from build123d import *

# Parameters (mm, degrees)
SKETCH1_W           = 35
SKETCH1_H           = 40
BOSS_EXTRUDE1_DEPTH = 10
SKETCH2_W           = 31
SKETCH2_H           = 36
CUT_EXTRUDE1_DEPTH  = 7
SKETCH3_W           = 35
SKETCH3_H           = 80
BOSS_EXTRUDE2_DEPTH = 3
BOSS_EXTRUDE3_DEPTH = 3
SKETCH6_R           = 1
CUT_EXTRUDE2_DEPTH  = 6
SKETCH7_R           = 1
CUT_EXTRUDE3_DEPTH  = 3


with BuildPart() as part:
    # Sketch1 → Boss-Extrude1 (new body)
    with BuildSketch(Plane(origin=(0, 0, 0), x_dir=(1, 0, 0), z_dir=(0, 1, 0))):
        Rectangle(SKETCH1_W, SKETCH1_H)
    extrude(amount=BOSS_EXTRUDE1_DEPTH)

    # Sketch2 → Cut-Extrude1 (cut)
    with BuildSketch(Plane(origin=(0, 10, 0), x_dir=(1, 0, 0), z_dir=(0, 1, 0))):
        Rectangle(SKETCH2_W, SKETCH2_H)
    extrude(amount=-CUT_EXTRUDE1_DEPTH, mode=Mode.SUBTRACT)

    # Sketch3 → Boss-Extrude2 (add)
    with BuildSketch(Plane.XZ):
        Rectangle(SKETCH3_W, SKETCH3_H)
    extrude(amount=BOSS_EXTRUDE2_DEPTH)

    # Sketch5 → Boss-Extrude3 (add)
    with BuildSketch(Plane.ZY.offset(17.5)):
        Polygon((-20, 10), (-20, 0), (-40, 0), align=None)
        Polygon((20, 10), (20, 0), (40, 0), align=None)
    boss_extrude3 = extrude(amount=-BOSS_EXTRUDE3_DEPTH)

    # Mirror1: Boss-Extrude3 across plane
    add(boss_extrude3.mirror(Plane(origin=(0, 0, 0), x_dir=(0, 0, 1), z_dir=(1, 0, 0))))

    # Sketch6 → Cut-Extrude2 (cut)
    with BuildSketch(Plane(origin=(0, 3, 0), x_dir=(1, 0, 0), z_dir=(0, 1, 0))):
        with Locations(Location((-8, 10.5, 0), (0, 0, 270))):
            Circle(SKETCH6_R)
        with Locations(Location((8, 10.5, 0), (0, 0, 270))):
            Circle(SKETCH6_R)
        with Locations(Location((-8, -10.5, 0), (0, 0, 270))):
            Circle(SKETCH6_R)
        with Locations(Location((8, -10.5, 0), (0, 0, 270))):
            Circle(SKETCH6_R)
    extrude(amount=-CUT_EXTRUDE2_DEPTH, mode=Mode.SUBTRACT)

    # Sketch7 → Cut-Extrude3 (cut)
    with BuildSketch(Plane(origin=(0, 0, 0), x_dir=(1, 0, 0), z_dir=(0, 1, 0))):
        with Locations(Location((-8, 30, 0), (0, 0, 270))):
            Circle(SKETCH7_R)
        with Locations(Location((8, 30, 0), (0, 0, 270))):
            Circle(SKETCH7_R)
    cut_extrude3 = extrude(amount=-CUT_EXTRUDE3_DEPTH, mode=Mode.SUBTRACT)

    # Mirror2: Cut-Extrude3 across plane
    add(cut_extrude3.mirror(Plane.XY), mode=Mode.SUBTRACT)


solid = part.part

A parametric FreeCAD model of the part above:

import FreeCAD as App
import Part
import Sketcher
from FreeCAD import Vector

doc = App.newDocument("Part")
body = doc.addObject("PartDesign::Body", "Body")

sketch1 = body.newObject("Sketcher::SketchObject", "Sketch")
sketch1.AttachmentSupport = (doc.getObject("XZ_Plane"), [""])
sketch1.MapMode = "FlatFace"
sketch1.addGeometry([
    Part.LineSegment(Vector(-18, -20, 0), Vector(-18, 20, 0)),
    Part.LineSegment(Vector(-18, 20, 0), Vector(18, 20, 0)),
    Part.LineSegment(Vector(18, 20, 0), Vector(18, -20, 0)),
    Part.LineSegment(Vector(18, -20, 0), Vector(-18, -20, 0)),
], False)
sketch1.addConstraint([
    Sketcher.Constraint("Coincident", 0, 2, 1, 1),
    Sketcher.Constraint("Coincident", 1, 2, 2, 1),
    Sketcher.Constraint("Coincident", 2, 2, 3, 1),
    Sketcher.Constraint("Coincident", 3, 2, 0, 1),
    Sketcher.Constraint("Vertical", 0),
    Sketcher.Constraint("Horizontal", 1),
    Sketcher.Constraint("Vertical", 2),
    Sketcher.Constraint("Horizontal", 3),
    Sketcher.Constraint("Symmetric", 0, 2, 2, 2, -1, 1),
    Sketcher.Constraint("DistanceX", 1, 1, 1, 2, 35.0),
    Sketcher.Constraint("DistanceY", 0, 1, 0, 2, 40.0),
])
pad1 = body.newObject("PartDesign::Pad", "Pad")
pad1.Profile = sketch1
pad1.Length = 10
pad1.Reversed = True

sketch2 = body.newObject("Sketcher::SketchObject", "Sketch001")
sketch2.AttachmentSupport = (doc.getObject("XZ_Plane"), [""])
sketch2.MapMode = "FlatFace"
sketch2.AttachmentOffset = App.Placement(Vector(0, 0, -10), App.Rotation())
sketch2.addGeometry([
    Part.LineSegment(Vector(-16, -18, 0), Vector(-16, 18, 0)),
    Part.LineSegment(Vector(-16, 18, 0), Vector(16, 18, 0)),
    Part.LineSegment(Vector(16, 18, 0), Vector(16, -18, 0)),
    Part.LineSegment(Vector(16, -18, 0), Vector(-16, -18, 0)),
], False)
sketch2.addConstraint([
    Sketcher.Constraint("Coincident", 0, 2, 1, 1),
    Sketcher.Constraint("Coincident", 1, 2, 2, 1),
    Sketcher.Constraint("Coincident", 2, 2, 3, 1),
    Sketcher.Constraint("Coincident", 3, 2, 0, 1),
    Sketcher.Constraint("Vertical", 0),
    Sketcher.Constraint("Horizontal", 1),
    Sketcher.Constraint("Vertical", 2),
    Sketcher.Constraint("Horizontal", 3),
    Sketcher.Constraint("Symmetric", 0, 2, 2, 2, -1, 1),
    Sketcher.Constraint("DistanceX", 1, 1, 1, 2, 31.0),
    Sketcher.Constraint("DistanceY", 0, 1, 0, 2, 36.0),
])
pocket1 = body.newObject("PartDesign::Pocket", "Pocket")
pocket1.Profile = sketch2
pocket1.Length = 7
pocket1.Reversed = True

sketch3 = body.newObject("Sketcher::SketchObject", "Sketch002")
sketch3.AttachmentSupport = (doc.getObject("XZ_Plane"), [""])
sketch3.MapMode = "FlatFace"
sketch3.addGeometry([
    Part.LineSegment(Vector(-18, 40, 0), Vector(-18, -40, 0)),
    Part.LineSegment(Vector(-18, -40, 0), Vector(18, -40, 0)),
    Part.LineSegment(Vector(18, -40, 0), Vector(18, 40, 0)),
    Part.LineSegment(Vector(18, 40, 0), Vector(-18, 40, 0)),
], False)
sketch3.addConstraint([
    Sketcher.Constraint("Coincident", 0, 2, 1, 1),
    Sketcher.Constraint("Coincident", 1, 2, 2, 1),
    Sketcher.Constraint("Coincident", 2, 2, 3, 1),
    Sketcher.Constraint("Coincident", 3, 2, 0, 1),
    Sketcher.Constraint("Vertical", 0),
    Sketcher.Constraint("Horizontal", 1),
    Sketcher.Constraint("Vertical", 2),
    Sketcher.Constraint("Horizontal", 3),
    Sketcher.Constraint("Symmetric", 0, 2, 2, 2, -1, 1),
    Sketcher.Constraint("DistanceX", 1, 1, 1, 2, 35.0),
    Sketcher.Constraint("DistanceY", 0, 2, 0, 1, 80.0),
])
pad2 = body.newObject("PartDesign::Pad", "Pad001")
pad2.Profile = sketch3
pad2.Length = 3

sketch4 = body.newObject("Sketcher::SketchObject", "Sketch003")
sketch4.AttachmentSupport = (doc.getObject("YZ_Plane"), [""])
sketch4.MapMode = "FlatFace"
sketch4.AttachmentOffset = App.Placement(Vector(0, 0, -17.5), App.Rotation())
sketch4.addGeometry([
    Part.LineSegment(Vector(0, -20, 0), Vector(10, -20, 0)),
    Part.LineSegment(Vector(10, -20, 0), Vector(0, -40, 0)),
    Part.LineSegment(Vector(0, -40, 0), Vector(0, -20, 0)),
    Part.LineSegment(Vector(10, 20, 0), Vector(0, 20, 0)),
    Part.LineSegment(Vector(0, 20, 0), Vector(0, 40, 0)),
    Part.LineSegment(Vector(0, 40, 0), Vector(10, 20, 0)),
], False)
sketch4.addConstraint([
    Sketcher.Constraint("Coincident", 0, 2, 1, 1),
    Sketcher.Constraint("Coincident", 1, 2, 2, 1),
    Sketcher.Constraint("Coincident", 2, 2, 0, 1),
    Sketcher.Constraint("Coincident", 3, 2, 4, 1),
    Sketcher.Constraint("Coincident", 4, 2, 5, 1),
    Sketcher.Constraint("Coincident", 5, 2, 3, 1),
    Sketcher.Constraint("Horizontal", 0),
    Sketcher.Constraint("Vertical", 2),
    Sketcher.Constraint("Horizontal", 3),
    Sketcher.Constraint("Vertical", 4),
    Sketcher.Constraint("Symmetric", 2, 2, 3, 2, -1, 1),
    Sketcher.Constraint("Symmetric", 1, 2, 4, 2, -1),
    Sketcher.Constraint("Vertical", 0, 2, 5, 2),
    Sketcher.Constraint("DistanceX", 0, 1, 0, 2, 10.0),
    Sketcher.Constraint("DistanceY", 2, 1, 2, 2, 20.0),
    Sketcher.Constraint("DistanceY", 0, 2, -1, 1, 20.0),
])
pad3 = body.newObject("PartDesign::Pad", "Pad002")
pad3.Profile = sketch4
pad3.Length = 3
doc.recompute()

mirrored = body.newObject("PartDesign::Mirrored", "Mirrored")
mirrored.Originals = [pad3]
mirrored.MirrorPlane = (doc.getObject("YZ_Plane"), [""])
body.Tip = mirrored

sketch5 = body.newObject("Sketcher::SketchObject", "Sketch004")
sketch5.AttachmentSupport = (doc.getObject("XZ_Plane"), [""])
sketch5.MapMode = "FlatFace"
sketch5.AttachmentOffset = App.Placement(Vector(0, 0, -3), App.Rotation())
sketch5.addGeometry([
    Part.Circle(Vector(-8, -10.5, 0), Vector(0, 0, 1), 1),
    Part.Circle(Vector(8, -10.5, 0), Vector(0, 0, 1), 1),
    Part.Circle(Vector(-8, 10.5, 0), Vector(0, 0, 1), 1),
    Part.Circle(Vector(8, 10.5, 0), Vector(0, 0, 1), 1),
], False)
sketch5.addConstraint([
    Sketcher.Constraint("Equal", 0, 1),
    Sketcher.Constraint("Equal", 1, 2),
    Sketcher.Constraint("Equal", 2, 3),
    Sketcher.Constraint("Symmetric", 1, 3, 2, 3, -1, 1),
    Sketcher.Constraint("Symmetric", 0, 3, 3, 3, -1, 1),
    Sketcher.Constraint("Symmetric", 0, 3, 1, 3, -2),
    Sketcher.Constraint("Diameter", 0, 2.0),
    Sketcher.Constraint("DistanceX", 0, 3, -1, 1, 8.0),
    Sketcher.Constraint("DistanceY", 0, 3, 2, 3, 21.0),
])
pocket2 = body.newObject("PartDesign::Pocket", "Pocket001")
pocket2.Profile = sketch5
pocket2.Length = 6
pocket2.Reversed = True

sketch6 = body.newObject("Sketcher::SketchObject", "Sketch005")
sketch6.AttachmentSupport = (doc.getObject("XZ_Plane"), [""])
sketch6.MapMode = "FlatFace"
sketch6.addGeometry([
    Part.Circle(Vector(-8, -30, 0), Vector(0, 0, 1), 1),
    Part.Circle(Vector(8, -30, 0), Vector(0, 0, 1), 1),
], False)
sketch6.addConstraint([
    Sketcher.Constraint("Equal", 0, 1),
    Sketcher.Constraint("Symmetric", 0, 3, 1, 3, -2),
    Sketcher.Constraint("Diameter", 0, 2.0),
    Sketcher.Constraint("DistanceX", 0, 3, -1, 1, 8.0),
    Sketcher.Constraint("DistanceY", 0, 3, -1, 1, 30.0),
])
pocket3 = body.newObject("PartDesign::Pocket", "Pocket002")
pocket3.Profile = sketch6
pocket3.Length = 3
pocket3.Reversed = True
doc.recompute()

mirrored2 = body.newObject("PartDesign::Mirrored", "Mirrored001")
mirrored2.Originals = [pocket3]
mirrored2.MirrorPlane = (doc.getObject("XY_Plane"), [""])
body.Tip = mirrored2

doc.recompute()
